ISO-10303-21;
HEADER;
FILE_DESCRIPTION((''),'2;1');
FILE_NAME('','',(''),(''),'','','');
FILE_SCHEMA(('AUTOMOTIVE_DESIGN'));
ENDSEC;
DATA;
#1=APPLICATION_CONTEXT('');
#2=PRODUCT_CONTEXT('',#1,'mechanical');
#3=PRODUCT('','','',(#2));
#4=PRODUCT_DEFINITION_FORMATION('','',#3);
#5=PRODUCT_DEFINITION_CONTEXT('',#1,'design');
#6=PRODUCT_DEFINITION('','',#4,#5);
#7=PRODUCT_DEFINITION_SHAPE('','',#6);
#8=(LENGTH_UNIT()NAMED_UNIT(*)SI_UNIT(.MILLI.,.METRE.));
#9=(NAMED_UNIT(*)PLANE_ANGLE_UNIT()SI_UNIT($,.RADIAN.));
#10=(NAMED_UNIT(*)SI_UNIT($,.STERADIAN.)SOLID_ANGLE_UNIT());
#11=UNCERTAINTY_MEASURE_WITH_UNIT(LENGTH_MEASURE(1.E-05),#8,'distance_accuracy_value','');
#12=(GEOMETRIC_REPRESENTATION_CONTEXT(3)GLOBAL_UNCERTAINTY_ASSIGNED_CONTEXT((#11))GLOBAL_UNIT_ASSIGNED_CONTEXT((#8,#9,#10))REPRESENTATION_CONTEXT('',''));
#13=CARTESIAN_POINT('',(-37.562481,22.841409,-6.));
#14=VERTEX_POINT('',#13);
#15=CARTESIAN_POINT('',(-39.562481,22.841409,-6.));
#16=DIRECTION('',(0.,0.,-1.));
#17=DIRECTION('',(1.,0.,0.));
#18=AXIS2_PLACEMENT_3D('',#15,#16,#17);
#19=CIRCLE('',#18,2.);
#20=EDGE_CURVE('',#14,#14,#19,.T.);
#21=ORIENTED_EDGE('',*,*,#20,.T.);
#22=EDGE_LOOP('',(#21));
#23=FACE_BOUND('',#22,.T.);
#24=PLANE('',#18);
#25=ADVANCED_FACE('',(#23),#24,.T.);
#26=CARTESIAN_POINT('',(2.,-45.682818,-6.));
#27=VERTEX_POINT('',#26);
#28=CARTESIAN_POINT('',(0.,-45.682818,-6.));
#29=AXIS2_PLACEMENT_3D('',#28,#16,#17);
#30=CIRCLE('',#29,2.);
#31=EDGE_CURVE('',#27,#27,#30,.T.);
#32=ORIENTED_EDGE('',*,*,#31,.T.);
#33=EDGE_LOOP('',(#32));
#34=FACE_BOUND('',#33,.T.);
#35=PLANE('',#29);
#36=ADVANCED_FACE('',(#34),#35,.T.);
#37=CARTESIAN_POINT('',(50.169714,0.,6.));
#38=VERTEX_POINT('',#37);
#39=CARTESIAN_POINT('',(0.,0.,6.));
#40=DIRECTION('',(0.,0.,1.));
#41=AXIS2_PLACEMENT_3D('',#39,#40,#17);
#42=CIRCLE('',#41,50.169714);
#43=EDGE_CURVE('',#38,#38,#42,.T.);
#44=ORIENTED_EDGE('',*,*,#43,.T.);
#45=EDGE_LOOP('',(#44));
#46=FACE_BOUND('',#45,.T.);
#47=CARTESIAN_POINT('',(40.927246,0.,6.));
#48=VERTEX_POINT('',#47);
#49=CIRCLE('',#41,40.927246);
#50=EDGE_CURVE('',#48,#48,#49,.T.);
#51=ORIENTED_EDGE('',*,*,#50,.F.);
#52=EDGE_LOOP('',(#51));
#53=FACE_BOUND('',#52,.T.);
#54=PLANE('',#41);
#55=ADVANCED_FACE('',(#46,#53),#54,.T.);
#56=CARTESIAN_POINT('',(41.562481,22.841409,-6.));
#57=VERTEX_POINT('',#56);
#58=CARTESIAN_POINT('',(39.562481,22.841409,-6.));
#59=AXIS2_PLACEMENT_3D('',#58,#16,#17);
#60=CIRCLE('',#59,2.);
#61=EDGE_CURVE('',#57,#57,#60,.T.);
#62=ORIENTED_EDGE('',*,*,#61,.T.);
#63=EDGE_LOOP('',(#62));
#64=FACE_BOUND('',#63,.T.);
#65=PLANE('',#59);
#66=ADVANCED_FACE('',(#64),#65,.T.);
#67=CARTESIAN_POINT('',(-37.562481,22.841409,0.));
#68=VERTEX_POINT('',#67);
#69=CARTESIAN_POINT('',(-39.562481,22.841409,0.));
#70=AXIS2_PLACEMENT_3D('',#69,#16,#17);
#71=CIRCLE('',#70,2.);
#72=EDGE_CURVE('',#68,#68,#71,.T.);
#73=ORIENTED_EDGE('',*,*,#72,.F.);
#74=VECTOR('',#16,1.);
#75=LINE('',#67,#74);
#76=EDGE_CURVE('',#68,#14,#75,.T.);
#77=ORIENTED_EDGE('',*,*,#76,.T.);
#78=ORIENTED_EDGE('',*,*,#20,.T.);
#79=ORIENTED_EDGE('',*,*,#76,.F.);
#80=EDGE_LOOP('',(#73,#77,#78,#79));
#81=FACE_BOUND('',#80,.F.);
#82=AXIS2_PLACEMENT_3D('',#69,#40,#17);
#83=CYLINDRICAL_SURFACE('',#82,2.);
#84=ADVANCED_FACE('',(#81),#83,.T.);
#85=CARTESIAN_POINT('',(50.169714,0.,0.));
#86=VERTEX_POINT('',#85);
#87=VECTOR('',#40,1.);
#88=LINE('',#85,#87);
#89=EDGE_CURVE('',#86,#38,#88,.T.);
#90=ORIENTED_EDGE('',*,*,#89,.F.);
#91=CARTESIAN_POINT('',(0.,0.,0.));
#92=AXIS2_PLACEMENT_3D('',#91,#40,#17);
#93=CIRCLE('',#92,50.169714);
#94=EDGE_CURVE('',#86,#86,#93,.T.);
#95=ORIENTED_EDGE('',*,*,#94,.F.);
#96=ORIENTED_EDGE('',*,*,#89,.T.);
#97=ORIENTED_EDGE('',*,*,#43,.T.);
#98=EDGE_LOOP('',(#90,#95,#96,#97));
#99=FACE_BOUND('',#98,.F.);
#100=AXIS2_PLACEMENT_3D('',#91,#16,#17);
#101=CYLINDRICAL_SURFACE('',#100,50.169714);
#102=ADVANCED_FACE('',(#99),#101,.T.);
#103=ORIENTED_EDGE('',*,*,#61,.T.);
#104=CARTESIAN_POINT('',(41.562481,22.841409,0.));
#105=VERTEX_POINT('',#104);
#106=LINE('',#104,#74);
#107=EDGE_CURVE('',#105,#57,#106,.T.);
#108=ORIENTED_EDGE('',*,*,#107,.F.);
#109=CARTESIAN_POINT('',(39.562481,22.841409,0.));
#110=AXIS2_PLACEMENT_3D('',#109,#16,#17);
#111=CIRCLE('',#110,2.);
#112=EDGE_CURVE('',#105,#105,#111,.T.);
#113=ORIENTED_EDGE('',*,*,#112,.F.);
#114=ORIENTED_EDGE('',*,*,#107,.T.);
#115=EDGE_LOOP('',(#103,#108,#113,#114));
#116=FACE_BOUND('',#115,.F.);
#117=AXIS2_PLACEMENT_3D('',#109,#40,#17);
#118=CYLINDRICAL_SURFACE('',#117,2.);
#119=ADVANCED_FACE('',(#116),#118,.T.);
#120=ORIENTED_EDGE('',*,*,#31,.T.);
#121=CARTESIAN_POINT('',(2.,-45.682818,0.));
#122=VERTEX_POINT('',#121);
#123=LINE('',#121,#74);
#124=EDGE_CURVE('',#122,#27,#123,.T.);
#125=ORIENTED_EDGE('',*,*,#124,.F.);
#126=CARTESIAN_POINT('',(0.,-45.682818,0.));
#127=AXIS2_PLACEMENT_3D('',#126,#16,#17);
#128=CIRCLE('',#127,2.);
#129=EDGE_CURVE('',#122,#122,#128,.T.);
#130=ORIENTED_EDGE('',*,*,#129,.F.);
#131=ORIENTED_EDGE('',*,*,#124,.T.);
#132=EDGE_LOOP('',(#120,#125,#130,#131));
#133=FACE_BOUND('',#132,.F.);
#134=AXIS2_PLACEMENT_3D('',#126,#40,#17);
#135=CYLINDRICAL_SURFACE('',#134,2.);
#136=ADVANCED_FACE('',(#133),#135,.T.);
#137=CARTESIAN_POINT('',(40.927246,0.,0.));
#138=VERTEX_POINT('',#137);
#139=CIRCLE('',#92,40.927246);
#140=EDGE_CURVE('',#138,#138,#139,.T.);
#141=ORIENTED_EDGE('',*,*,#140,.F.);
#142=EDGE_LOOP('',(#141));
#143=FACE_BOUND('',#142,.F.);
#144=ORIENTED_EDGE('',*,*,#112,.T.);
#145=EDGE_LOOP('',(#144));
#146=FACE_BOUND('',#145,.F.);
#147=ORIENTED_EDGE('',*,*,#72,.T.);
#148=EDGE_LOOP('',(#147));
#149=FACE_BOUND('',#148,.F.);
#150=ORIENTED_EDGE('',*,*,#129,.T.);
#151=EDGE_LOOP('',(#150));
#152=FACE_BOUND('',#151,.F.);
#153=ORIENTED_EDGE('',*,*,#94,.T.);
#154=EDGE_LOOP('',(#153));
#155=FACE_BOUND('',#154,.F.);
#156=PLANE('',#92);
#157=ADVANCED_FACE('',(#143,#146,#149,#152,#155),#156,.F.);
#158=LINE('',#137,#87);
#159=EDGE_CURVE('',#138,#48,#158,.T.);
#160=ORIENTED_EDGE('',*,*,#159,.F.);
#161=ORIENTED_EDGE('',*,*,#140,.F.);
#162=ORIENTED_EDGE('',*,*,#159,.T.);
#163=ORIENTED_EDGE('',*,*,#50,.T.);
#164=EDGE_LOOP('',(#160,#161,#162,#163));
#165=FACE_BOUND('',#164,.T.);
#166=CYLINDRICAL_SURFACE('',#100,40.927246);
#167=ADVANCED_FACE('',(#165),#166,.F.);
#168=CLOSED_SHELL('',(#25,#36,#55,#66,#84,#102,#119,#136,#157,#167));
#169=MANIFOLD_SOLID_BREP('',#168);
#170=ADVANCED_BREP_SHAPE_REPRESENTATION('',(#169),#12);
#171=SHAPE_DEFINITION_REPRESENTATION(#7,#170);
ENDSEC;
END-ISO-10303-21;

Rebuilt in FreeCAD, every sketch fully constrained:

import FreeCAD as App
import Part
import Sketcher

V = App.Vector
Q = App.Units.Quantity

doc = App.newDocument("Part")
body = doc.addObject("PartDesign::Body", "Body")

sketch1 = body.newObject("Sketcher::SketchObject", "Sketch")
sketch1.AttachmentSupport = (doc.getObject("XY_Plane"), [""])
sketch1.MapMode = "FlatFace"
sketch1.addGeometry([
    Part.Circle(V(0, 0, 0), V(0, 0, 1), 50),
    Part.Circle(V(0, 0, 0), V(0, 0, 1), 41),
], False)
sketch1.addConstraint([
    Sketcher.Constraint("Coincident", 0, 3, -1, 1),
    Sketcher.Constraint("Coincident", 1, 3, -1, 1),
    Sketcher.Constraint("Diameter", 0, Q("100.339428 mm")),
    Sketcher.Constraint("Diameter", 1, Q("81.854492 mm")),
])
pad1 = body.newObject("PartDesign::Pad", "Pad")
pad1.Profile = sketch1
pad1.Length = 6

sketch2 = body.newObject("Sketcher::SketchObject", "Sketch001")
sketch2.AttachmentSupport = (doc.getObject("XY_Plane"), [""])
sketch2.MapMode = "FlatFace"
sketch2.addGeometry([
    Part.Circle(V(0, -45.7, 0), V(0, 0, 1), 2),
    Part.Circle(V(-39.6, 22.8, 0), V(0, 0, 1), 2),
    Part.Circle(V(39.6, 22.8, 0), V(0, 0, 1), 2),
], False)
sketch2.addConstraint([
    Sketcher.Constraint("Equal", 0, 1),
    Sketcher.Constraint("Equal", 1, 2),
    Sketcher.Constraint("Symmetric", 1, 3, 2, 3, -2),
    Sketcher.Constraint("PointOnObject", 0, 3, -2),
    Sketcher.Constraint("Diameter", 0, Q("4 mm")),
    Sketcher.Constraint("DistanceX", 1, 3, -1, 1, Q("39.562481 mm")),
    Sketcher.Constraint("DistanceY", -1, 1, 1, 3, Q("22.841409 mm")),
    Sketcher.Constraint("DistanceY", 0, 3, -1, 1, Q("45.682818 mm")),
])
pad2 = body.newObject("PartDesign::Pad", "Pad001")
pad2.Profile = sketch2
pad2.Length = 6
pad2.Reversed = True

doc.recompute()
